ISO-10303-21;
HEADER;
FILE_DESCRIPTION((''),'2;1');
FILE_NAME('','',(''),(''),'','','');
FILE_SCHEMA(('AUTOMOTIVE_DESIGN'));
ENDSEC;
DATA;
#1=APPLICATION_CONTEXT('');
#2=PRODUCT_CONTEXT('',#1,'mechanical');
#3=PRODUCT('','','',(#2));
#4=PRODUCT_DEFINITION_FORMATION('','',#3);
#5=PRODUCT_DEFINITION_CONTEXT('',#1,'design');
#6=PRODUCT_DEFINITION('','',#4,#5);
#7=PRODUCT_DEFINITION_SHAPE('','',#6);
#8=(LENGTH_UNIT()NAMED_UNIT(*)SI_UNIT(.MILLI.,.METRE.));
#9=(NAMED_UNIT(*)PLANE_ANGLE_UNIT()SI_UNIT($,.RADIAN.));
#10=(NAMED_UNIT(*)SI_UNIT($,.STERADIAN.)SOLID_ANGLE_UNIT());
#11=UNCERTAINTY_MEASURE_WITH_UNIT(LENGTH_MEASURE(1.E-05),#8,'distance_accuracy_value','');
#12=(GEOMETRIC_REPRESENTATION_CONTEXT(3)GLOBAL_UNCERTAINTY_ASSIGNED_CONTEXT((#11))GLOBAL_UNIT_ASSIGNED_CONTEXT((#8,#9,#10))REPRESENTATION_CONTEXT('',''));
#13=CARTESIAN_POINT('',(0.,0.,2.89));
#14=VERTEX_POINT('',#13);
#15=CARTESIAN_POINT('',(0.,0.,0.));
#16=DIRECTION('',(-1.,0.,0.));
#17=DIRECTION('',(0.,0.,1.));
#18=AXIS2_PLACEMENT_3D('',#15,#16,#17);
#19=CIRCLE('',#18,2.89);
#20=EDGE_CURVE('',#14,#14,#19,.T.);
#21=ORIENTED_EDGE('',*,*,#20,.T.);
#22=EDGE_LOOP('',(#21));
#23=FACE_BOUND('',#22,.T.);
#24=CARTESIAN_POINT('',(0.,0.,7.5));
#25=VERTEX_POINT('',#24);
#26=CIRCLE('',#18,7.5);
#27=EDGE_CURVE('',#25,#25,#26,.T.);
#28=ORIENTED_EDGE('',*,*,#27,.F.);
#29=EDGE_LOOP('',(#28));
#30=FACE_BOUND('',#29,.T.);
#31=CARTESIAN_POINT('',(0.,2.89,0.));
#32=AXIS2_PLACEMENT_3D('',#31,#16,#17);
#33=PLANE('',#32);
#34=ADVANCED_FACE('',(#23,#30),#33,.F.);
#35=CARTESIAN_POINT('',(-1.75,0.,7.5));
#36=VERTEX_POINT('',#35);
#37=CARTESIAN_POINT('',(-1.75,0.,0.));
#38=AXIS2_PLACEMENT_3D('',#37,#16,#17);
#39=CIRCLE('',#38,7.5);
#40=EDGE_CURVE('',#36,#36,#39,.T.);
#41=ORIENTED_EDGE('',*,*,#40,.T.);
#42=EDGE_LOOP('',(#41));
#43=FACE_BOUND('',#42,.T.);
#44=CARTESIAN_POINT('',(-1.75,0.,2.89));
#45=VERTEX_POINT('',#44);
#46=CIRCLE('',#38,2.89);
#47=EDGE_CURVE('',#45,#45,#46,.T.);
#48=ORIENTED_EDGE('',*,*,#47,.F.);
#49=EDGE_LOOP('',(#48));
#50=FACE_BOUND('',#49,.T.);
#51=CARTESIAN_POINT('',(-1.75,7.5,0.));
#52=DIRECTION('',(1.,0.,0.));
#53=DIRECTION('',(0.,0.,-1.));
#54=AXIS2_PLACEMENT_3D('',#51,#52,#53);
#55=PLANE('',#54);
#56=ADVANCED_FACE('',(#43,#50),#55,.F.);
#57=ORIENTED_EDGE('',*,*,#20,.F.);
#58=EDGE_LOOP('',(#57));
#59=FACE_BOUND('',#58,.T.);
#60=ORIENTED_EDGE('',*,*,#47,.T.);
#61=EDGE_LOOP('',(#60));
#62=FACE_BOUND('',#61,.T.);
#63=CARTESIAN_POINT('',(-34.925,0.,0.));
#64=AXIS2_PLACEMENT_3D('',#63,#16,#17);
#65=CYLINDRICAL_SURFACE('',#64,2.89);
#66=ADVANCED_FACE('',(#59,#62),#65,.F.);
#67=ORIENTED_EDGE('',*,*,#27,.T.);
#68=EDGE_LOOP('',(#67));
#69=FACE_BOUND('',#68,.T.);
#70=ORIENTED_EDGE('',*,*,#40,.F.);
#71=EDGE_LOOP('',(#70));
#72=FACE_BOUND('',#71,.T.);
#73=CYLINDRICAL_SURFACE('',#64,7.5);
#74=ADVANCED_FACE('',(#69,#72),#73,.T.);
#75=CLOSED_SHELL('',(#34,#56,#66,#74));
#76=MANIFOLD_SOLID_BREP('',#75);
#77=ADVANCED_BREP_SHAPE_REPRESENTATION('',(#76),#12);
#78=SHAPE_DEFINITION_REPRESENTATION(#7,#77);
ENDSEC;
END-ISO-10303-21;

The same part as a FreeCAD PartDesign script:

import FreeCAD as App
import Part
import Sketcher


def add_polygon(sketch, points):
    """Adds a closed chain of lines whose ends are joined by coincident constraints."""
    first, n = sketch.GeometryCount, len(points)
    for a, b in zip(points, points[1:] + points[:1]):
        sketch.addGeometry(Part.LineSegment(App.Vector(*a, 0), App.Vector(*b, 0)), False)
    for i in range(n):
        sketch.addConstraint(Sketcher.Constraint("Coincident", first + i, 2, first + (i + 1) % n, 1))

doc = App.newDocument("Part")
body = doc.addObject("PartDesign::Body", "Body")

# Sketch on XY plane
sketch1 = body.newObject("Sketcher::SketchObject", "Sketch")
sketch1.AttachmentSupport = (doc.getObject("XY_Plane"), [""])
sketch1.MapMode = "FlatFace"
add_polygon(sketch1, [(-1.8, 7.5), (-1.8, 2.9), (0, 2.9), (0, 7.5)])  # lines 0-3
sketch1.addConstraint([
    Sketcher.Constraint("Vertical", 0),
    Sketcher.Constraint("Horizontal", 1),
    Sketcher.Constraint("Vertical", 2),
    Sketcher.Constraint("Horizontal", 3),
    Sketcher.Constraint("PointOnObject", 1, 2, -2),
    Sketcher.Constraint("DistanceX", 1, 1, 1, 2, 1.75),
    Sketcher.Constraint("DistanceY", 0, 2, 0, 1, 4.61),
    Sketcher.Constraint("DistanceY", -1, 1, 2, 2, 7.5),
])
revolution = body.newObject("PartDesign::Revolution", "Revolution")
revolution.Profile = sketch1
revolution.ReferenceAxis = (sketch1, ["H_Axis"])
revolution.Angle = 360

doc.recompute()
